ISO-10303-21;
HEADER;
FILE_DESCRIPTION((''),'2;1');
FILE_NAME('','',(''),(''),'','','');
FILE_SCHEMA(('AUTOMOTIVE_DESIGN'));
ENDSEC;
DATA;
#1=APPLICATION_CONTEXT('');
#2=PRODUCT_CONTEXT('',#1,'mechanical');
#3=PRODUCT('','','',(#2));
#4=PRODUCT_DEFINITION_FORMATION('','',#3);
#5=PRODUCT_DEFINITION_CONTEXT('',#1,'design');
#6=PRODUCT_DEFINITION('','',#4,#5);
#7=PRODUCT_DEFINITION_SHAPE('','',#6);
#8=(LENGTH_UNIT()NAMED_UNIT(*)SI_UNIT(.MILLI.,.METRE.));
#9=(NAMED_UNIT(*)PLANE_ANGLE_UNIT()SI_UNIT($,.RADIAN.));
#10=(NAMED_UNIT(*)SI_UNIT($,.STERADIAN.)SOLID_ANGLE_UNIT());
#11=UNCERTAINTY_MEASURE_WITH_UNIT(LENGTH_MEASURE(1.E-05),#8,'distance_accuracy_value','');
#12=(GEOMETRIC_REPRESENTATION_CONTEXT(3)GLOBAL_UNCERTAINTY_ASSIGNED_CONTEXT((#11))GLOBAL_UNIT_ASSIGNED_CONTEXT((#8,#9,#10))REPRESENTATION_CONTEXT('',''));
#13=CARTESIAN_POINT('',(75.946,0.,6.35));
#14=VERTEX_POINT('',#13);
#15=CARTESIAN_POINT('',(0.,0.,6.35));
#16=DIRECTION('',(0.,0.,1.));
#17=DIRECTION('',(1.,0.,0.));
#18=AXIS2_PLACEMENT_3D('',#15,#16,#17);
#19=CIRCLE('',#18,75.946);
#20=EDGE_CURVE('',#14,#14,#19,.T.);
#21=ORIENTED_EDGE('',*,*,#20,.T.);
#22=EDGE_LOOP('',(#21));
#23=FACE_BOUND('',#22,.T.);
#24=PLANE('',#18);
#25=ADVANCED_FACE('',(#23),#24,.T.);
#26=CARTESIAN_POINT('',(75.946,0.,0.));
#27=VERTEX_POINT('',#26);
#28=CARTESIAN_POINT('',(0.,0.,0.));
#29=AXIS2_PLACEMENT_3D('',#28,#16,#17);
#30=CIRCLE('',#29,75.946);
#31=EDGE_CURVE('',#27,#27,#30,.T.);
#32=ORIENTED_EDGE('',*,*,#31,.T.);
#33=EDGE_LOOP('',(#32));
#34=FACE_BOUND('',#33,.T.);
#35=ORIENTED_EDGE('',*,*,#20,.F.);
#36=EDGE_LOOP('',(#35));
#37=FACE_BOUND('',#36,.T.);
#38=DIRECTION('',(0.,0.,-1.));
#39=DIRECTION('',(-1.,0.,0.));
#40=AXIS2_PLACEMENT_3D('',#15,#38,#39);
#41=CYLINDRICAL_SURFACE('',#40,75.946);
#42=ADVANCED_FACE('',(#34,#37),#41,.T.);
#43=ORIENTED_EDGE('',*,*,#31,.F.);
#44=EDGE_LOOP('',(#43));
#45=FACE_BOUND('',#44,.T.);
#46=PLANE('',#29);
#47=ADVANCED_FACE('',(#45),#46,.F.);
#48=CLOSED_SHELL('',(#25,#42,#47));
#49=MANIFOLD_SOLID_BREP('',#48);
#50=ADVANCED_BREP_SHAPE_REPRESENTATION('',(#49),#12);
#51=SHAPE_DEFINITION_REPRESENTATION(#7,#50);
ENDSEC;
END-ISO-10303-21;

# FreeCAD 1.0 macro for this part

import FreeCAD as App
import Part
import Sketcher

V = App.Vector
Q = App.Units.Quantity

doc = App.newDocument("Part")
params = doc.addObject("Spreadsheet::Sheet", "Params")
for row, (alias, value) in enumerate([
    ("sketch1_diameter", "5.98 in"),
    ("pad1_length", "0.25 in"),
], start=1):
    params.set(f"A{row}", alias)
    params.set(f"B{row}", "=" + value)
    params.setAlias(f"B{row}", alias)

body = doc.addObject("PartDesign::Body", "Body")

# Sketch on XY plane
sketch1 = doc.addObject("Sketcher::SketchObject", "Sketch")
body.addObject(sketch1)
sketch1.AttachmentSupport = (doc.XY_Plane, [""])
sketch1.MapMode = "FlatFace"
sketch1.addGeometry(Part.Circle(V(0, 0, 0), V(0, 0, 1), 76), False)
sketch1.addConstraint(Sketcher.Constraint("Coincident", 0, 3, -1, 1))
sketch1.addConstraint(Sketcher.Constraint("Diameter", 0, Q("5.98 in")))
sketch1.setExpression("Constraints[1]", "Params.sketch1_diameter")
pad1 = doc.addObject("PartDesign::Pad", "Pad")
body.addObject(pad1)
pad1.Profile = sketch1
pad1.setExpression("Length", "Params.pad1_length")

doc.recompute()
